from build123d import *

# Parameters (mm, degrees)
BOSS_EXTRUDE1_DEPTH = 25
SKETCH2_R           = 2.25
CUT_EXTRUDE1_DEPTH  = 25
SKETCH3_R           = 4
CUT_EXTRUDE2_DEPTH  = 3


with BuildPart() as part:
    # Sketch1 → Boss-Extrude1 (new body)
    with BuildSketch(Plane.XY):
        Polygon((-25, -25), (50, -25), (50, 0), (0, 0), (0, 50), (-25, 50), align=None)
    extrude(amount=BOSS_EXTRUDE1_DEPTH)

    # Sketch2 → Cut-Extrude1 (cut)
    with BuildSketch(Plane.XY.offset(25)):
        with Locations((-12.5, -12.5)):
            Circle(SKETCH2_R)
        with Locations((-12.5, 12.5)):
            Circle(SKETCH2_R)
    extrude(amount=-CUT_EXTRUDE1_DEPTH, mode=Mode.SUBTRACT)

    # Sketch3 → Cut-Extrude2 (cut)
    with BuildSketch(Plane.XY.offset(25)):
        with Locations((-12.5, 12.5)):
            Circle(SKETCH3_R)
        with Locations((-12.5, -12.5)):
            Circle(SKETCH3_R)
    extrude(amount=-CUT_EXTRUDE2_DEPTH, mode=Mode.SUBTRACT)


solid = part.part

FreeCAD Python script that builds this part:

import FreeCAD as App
import Part
import Sketcher

doc = App.newDocument("Part")
body = doc.addObject("PartDesign::Body", "Body")

sketch1 = doc.addObject("Sketcher::SketchObject", "Sketch")
body.addObject(sketch1)
sketch1.AttachmentSupport = (doc.XY_Plane, [""])
sketch1.MapMode = "FlatFace"
sketch1.addGeometry(Part.LineSegment(App.Vector(-25, -25, 0), App.Vector(50, -25, 0)), False)
sketch1.addGeometry(Part.LineSegment(App.Vector(50, -25, 0), App.Vector(50, 0, 0)), False)
sketch1.addGeometry(Part.LineSegment(App.Vector(50, 0, 0), App.Vector(0, 0, 0)), False)
sketch1.addGeometry(Part.LineSegment(App.Vector(0, 0, 0), App.Vector(0, 50, 0)), False)
sketch1.addGeometry(Part.LineSegment(App.Vector(0, 50, 0), App.Vector(-25, 50, 0)), False)
sketch1.addGeometry(Part.LineSegment(App.Vector(-25, 50, 0), App.Vector(-25, -25, 0)), False)
sketch1.addConstraint(Sketcher.Constraint("Coincident", 0, 2, 1, 1))
sketch1.addConstraint(Sketcher.Constraint("Coincident", 1, 2, 2, 1))
sketch1.addConstraint(Sketcher.Constraint("Coincident", 2, 2, 3, 1))
sketch1.addConstraint(Sketcher.Constraint("Coincident", 3, 2, 4, 1))
sketch1.addConstraint(Sketcher.Constraint("Coincident", 4, 2, 5, 1))
sketch1.addConstraint(Sketcher.Constraint("Coincident", 5, 2, 0, 1))
sketch1.addConstraint(Sketcher.Constraint("Horizontal", 0))
sketch1.addConstraint(Sketcher.Constraint("Vertical", 1))
sketch1.addConstraint(Sketcher.Constraint("Horizontal", 2))
sketch1.addConstraint(Sketcher.Constraint("Vertical", 3))
sketch1.addConstraint(Sketcher.Constraint("Horizontal", 4))
sketch1.addConstraint(Sketcher.Constraint("Vertical", 5))
sketch1.addConstraint(Sketcher.Constraint("Coincident", 2, 2, -1, 1))
sketch1.addConstraint(Sketcher.Constraint("Equal", 4, 1))
sketch1.addConstraint(Sketcher.Constraint("Equal", 2, 3))
sketch1.addConstraint(Sketcher.Constraint("DistanceX", 0, 1, 0, 2, 75.0))
sketch1.addConstraint(Sketcher.Constraint("DistanceX", 2, 2, 2, 1, 50.0))
pad1 = doc.addObject("PartDesign::Pad", "Pad")
body.addObject(pad1)
pad1.Profile = sketch1
pad1.Length = 25

sketch2 = doc.addObject("Sketcher::SketchObject", "Sketch001")
body.addObject(sketch2)
sketch2.AttachmentSupport = (doc.XY_Plane, [""])
sketch2.MapMode = "FlatFace"
sketch2.AttachmentOffset = App.Placement(App.Vector(0, 0, 25), App.Rotation())
sketch2.addGeometry(Part.Circle(App.Vector(-12.5, -12.5, 0), App.Vector(0, 0, 1), 2.2), False)
sketch2.addGeometry(Part.Circle(App.Vector(-12.5, 12.5, 0), App.Vector(0, 0, 1), 2.2), False)
sketch2.addConstraint(Sketcher.Constraint("Equal", 0, 1))
sketch2.addConstraint(Sketcher.Constraint("Symmetric", 0, 3, 1, 3, -1))
sketch2.addConstraint(Sketcher.Constraint("Diameter", 0, 4.5))
sketch2.addConstraint(Sketcher.Constraint("DistanceY", 0, 3, 1, 3, 25.0))
sketch2.addConstraint(Sketcher.Constraint("DistanceX", 0, 3, -1, 1, 12.5))
pocket1 = doc.addObject("PartDesign::Pocket", "Pocket")
body.addObject(pocket1)
pocket1.Profile = sketch2
pocket1.Length = 25

sketch3 = doc.addObject("Sketcher::SketchObject", "Sketch002")
body.addObject(sketch3)
sketch3.AttachmentSupport = (doc.XY_Plane, [""])
sketch3.MapMode = "FlatFace"
sketch3.AttachmentOffset = App.Placement(App.Vector(0, 0, 25), App.Rotation())
sketch3.addGeometry(Part.Circle(App.Vector(-12.5, 12.5, 0), App.Vector(0, 0, 1), 4), False)
sketch3.addGeometry(Part.Circle(App.Vector(-12.5, -12.5, 0), App.Vector(0, 0, 1), 4), False)
sketch3.addConstraint(Sketcher.Constraint("Equal", 0, 1))
sketch3.addConstraint(Sketcher.Constraint("Symmetric", 0, 3, 1, 3, -1))
sketch3.addConstraint(Sketcher.Constraint("Diameter", 0, 8.0))
sketch3.addConstraint(Sketcher.Constraint("DistanceY", 1, 3, 0, 3, 25.0))
sketch3.addConstraint(Sketcher.Constraint("DistanceX", 0, 3, -1, 1, 12.5))
pocket2 = doc.addObject("PartDesign::Pocket", "Pocket001")
body.addObject(pocket2)
pocket2.Profile = sketch3
pocket2.Length = 3

doc.recompute()
